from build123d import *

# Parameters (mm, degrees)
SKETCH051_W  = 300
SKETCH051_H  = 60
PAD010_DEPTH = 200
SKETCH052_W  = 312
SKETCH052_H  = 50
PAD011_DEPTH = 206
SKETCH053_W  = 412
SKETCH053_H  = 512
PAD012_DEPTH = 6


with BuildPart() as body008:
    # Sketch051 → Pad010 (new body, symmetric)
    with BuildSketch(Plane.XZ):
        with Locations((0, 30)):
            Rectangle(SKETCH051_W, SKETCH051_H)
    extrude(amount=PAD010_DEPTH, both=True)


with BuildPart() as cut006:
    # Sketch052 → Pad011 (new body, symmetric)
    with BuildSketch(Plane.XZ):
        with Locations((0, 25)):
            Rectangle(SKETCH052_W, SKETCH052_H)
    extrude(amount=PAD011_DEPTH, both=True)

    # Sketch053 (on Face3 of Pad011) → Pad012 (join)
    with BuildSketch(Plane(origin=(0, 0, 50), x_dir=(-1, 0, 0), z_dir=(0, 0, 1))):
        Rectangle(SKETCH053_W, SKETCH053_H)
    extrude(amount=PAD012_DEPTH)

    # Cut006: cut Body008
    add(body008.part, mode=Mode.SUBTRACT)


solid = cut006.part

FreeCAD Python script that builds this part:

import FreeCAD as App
import Part
import Sketcher
from FreeCAD import Vector
Q = App.Units.Quantity


def add_polygon(sketch, points):
    """Adds a closed chain of lines whose ends are joined by coincident constraints."""
    first, n = sketch.GeometryCount, len(points)
    for a, b in zip(points, points[1:] + points[:1]):
        sketch.addGeometry(Part.LineSegment(App.Vector(*a, 0), App.Vector(*b, 0)), False)
    for i in range(n):
        sketch.addConstraint(Sketcher.Constraint("Coincident", first + i, 2, first + (i + 1) % n, 1))

doc = App.newDocument("Part")
body = doc.addObject("PartDesign::Body", "Body")

# Sketch on XZ plane
sketch1 = doc.addObject("Sketcher::SketchObject", "Sketch")
body.addObject(sketch1)
sketch1.AttachmentSupport = (doc.XZ_Plane, [""])
sketch1.MapMode = "FlatFace"
add_polygon(sketch1, [(-150, 60), (-150, 0), (150, 0), (150, 60)])  # lines 0-3
sketch1.addConstraint(Sketcher.Constraint("Vertical", 0))
sketch1.addConstraint(Sketcher.Constraint("Horizontal", 1))
sketch1.addConstraint(Sketcher.Constraint("Vertical", 2))
sketch1.addConstraint(Sketcher.Constraint("Horizontal", 3))
sketch1.addConstraint(Sketcher.Constraint("Symmetric", 0, 2, 1, 2, -1, 1))
sketch1.addConstraint(Sketcher.Constraint("DistanceX", 1, 1, 1, 2, Q("300 mm")))
sketch1.addConstraint(Sketcher.Constraint("DistanceY", 0, 2, 0, 1, Q("60 mm")))
pad1 = doc.addObject("PartDesign::Pad", "Pad")
body.addObject(pad1)
pad1.Profile = sketch1
pad1.Length = 400
pad1.Midplane = True
body2 = doc.addObject("PartDesign::Body", "Body001")

# Sketch on XZ plane
sketch2 = doc.addObject("Sketcher::SketchObject", "Sketch001")
body2.addObject(sketch2)
sketch2.AttachmentSupport = (doc.getObject("XZ_Plane001"), [""])
sketch2.MapMode = "FlatFace"
add_polygon(sketch2, [(-156, 50), (-156, 0), (156, 0), (156, 50)])  # lines 0-3
sketch2.addConstraint(Sketcher.Constraint("Vertical", 0))
sketch2.addConstraint(Sketcher.Constraint("Horizontal", 1))
sketch2.addConstraint(Sketcher.Constraint("Vertical", 2))
sketch2.addConstraint(Sketcher.Constraint("Horizontal", 3))
sketch2.addConstraint(Sketcher.Constraint("Symmetric", 0, 2, 1, 2, -1, 1))
sketch2.addConstraint(Sketcher.Constraint("DistanceX", 1, 1, 1, 2, Q("312 mm")))
sketch2.addConstraint(Sketcher.Constraint("DistanceY", 0, 2, 0, 1, Q("50 mm")))
pad2 = doc.addObject("PartDesign::Pad", "Pad001")
body2.addObject(pad2)
pad2.Profile = sketch2
pad2.Length = 412
pad2.Midplane = True

# Sketch on XY plane
sketch3 = doc.addObject("Sketcher::SketchObject", "Sketch002")
body2.addObject(sketch3)
sketch3.AttachmentSupport = (doc.getObject("XY_Plane001"), [""])
sketch3.MapMode = "FlatFace"
sketch3.AttachmentOffset = App.Placement(Vector(0, 0, 50), App.Rotation())
add_polygon(sketch3, [(206, -256), (206, 256), (-206, 256), (-206, -256)])  # lines 0-3
sketch3.addConstraint(Sketcher.Constraint("Vertical", 0))
sketch3.addConstraint(Sketcher.Constraint("Horizontal", 1))
sketch3.addConstraint(Sketcher.Constraint("Vertical", 2))
sketch3.addConstraint(Sketcher.Constraint("Horizontal", 3))
sketch3.addConstraint(Sketcher.Constraint("Symmetric", 0, 2, 2, 2, -1, 1))
sketch3.addConstraint(Sketcher.Constraint("DistanceX", 1, 2, 1, 1, Q("412 mm")))
sketch3.addConstraint(Sketcher.Constraint("DistanceY", 0, 1, 0, 2, Q("512 mm")))
pad3 = doc.addObject("PartDesign::Pad", "Pad002")
body2.addObject(pad3)
pad3.Profile = sketch3
pad3.Length = 6
doc.recompute()

boolean = doc.addObject("PartDesign::Boolean", "Boolean")
body2.addObject(boolean)
boolean.Type = "Cut"
boolean.addObjects([body])

doc.recompute()
